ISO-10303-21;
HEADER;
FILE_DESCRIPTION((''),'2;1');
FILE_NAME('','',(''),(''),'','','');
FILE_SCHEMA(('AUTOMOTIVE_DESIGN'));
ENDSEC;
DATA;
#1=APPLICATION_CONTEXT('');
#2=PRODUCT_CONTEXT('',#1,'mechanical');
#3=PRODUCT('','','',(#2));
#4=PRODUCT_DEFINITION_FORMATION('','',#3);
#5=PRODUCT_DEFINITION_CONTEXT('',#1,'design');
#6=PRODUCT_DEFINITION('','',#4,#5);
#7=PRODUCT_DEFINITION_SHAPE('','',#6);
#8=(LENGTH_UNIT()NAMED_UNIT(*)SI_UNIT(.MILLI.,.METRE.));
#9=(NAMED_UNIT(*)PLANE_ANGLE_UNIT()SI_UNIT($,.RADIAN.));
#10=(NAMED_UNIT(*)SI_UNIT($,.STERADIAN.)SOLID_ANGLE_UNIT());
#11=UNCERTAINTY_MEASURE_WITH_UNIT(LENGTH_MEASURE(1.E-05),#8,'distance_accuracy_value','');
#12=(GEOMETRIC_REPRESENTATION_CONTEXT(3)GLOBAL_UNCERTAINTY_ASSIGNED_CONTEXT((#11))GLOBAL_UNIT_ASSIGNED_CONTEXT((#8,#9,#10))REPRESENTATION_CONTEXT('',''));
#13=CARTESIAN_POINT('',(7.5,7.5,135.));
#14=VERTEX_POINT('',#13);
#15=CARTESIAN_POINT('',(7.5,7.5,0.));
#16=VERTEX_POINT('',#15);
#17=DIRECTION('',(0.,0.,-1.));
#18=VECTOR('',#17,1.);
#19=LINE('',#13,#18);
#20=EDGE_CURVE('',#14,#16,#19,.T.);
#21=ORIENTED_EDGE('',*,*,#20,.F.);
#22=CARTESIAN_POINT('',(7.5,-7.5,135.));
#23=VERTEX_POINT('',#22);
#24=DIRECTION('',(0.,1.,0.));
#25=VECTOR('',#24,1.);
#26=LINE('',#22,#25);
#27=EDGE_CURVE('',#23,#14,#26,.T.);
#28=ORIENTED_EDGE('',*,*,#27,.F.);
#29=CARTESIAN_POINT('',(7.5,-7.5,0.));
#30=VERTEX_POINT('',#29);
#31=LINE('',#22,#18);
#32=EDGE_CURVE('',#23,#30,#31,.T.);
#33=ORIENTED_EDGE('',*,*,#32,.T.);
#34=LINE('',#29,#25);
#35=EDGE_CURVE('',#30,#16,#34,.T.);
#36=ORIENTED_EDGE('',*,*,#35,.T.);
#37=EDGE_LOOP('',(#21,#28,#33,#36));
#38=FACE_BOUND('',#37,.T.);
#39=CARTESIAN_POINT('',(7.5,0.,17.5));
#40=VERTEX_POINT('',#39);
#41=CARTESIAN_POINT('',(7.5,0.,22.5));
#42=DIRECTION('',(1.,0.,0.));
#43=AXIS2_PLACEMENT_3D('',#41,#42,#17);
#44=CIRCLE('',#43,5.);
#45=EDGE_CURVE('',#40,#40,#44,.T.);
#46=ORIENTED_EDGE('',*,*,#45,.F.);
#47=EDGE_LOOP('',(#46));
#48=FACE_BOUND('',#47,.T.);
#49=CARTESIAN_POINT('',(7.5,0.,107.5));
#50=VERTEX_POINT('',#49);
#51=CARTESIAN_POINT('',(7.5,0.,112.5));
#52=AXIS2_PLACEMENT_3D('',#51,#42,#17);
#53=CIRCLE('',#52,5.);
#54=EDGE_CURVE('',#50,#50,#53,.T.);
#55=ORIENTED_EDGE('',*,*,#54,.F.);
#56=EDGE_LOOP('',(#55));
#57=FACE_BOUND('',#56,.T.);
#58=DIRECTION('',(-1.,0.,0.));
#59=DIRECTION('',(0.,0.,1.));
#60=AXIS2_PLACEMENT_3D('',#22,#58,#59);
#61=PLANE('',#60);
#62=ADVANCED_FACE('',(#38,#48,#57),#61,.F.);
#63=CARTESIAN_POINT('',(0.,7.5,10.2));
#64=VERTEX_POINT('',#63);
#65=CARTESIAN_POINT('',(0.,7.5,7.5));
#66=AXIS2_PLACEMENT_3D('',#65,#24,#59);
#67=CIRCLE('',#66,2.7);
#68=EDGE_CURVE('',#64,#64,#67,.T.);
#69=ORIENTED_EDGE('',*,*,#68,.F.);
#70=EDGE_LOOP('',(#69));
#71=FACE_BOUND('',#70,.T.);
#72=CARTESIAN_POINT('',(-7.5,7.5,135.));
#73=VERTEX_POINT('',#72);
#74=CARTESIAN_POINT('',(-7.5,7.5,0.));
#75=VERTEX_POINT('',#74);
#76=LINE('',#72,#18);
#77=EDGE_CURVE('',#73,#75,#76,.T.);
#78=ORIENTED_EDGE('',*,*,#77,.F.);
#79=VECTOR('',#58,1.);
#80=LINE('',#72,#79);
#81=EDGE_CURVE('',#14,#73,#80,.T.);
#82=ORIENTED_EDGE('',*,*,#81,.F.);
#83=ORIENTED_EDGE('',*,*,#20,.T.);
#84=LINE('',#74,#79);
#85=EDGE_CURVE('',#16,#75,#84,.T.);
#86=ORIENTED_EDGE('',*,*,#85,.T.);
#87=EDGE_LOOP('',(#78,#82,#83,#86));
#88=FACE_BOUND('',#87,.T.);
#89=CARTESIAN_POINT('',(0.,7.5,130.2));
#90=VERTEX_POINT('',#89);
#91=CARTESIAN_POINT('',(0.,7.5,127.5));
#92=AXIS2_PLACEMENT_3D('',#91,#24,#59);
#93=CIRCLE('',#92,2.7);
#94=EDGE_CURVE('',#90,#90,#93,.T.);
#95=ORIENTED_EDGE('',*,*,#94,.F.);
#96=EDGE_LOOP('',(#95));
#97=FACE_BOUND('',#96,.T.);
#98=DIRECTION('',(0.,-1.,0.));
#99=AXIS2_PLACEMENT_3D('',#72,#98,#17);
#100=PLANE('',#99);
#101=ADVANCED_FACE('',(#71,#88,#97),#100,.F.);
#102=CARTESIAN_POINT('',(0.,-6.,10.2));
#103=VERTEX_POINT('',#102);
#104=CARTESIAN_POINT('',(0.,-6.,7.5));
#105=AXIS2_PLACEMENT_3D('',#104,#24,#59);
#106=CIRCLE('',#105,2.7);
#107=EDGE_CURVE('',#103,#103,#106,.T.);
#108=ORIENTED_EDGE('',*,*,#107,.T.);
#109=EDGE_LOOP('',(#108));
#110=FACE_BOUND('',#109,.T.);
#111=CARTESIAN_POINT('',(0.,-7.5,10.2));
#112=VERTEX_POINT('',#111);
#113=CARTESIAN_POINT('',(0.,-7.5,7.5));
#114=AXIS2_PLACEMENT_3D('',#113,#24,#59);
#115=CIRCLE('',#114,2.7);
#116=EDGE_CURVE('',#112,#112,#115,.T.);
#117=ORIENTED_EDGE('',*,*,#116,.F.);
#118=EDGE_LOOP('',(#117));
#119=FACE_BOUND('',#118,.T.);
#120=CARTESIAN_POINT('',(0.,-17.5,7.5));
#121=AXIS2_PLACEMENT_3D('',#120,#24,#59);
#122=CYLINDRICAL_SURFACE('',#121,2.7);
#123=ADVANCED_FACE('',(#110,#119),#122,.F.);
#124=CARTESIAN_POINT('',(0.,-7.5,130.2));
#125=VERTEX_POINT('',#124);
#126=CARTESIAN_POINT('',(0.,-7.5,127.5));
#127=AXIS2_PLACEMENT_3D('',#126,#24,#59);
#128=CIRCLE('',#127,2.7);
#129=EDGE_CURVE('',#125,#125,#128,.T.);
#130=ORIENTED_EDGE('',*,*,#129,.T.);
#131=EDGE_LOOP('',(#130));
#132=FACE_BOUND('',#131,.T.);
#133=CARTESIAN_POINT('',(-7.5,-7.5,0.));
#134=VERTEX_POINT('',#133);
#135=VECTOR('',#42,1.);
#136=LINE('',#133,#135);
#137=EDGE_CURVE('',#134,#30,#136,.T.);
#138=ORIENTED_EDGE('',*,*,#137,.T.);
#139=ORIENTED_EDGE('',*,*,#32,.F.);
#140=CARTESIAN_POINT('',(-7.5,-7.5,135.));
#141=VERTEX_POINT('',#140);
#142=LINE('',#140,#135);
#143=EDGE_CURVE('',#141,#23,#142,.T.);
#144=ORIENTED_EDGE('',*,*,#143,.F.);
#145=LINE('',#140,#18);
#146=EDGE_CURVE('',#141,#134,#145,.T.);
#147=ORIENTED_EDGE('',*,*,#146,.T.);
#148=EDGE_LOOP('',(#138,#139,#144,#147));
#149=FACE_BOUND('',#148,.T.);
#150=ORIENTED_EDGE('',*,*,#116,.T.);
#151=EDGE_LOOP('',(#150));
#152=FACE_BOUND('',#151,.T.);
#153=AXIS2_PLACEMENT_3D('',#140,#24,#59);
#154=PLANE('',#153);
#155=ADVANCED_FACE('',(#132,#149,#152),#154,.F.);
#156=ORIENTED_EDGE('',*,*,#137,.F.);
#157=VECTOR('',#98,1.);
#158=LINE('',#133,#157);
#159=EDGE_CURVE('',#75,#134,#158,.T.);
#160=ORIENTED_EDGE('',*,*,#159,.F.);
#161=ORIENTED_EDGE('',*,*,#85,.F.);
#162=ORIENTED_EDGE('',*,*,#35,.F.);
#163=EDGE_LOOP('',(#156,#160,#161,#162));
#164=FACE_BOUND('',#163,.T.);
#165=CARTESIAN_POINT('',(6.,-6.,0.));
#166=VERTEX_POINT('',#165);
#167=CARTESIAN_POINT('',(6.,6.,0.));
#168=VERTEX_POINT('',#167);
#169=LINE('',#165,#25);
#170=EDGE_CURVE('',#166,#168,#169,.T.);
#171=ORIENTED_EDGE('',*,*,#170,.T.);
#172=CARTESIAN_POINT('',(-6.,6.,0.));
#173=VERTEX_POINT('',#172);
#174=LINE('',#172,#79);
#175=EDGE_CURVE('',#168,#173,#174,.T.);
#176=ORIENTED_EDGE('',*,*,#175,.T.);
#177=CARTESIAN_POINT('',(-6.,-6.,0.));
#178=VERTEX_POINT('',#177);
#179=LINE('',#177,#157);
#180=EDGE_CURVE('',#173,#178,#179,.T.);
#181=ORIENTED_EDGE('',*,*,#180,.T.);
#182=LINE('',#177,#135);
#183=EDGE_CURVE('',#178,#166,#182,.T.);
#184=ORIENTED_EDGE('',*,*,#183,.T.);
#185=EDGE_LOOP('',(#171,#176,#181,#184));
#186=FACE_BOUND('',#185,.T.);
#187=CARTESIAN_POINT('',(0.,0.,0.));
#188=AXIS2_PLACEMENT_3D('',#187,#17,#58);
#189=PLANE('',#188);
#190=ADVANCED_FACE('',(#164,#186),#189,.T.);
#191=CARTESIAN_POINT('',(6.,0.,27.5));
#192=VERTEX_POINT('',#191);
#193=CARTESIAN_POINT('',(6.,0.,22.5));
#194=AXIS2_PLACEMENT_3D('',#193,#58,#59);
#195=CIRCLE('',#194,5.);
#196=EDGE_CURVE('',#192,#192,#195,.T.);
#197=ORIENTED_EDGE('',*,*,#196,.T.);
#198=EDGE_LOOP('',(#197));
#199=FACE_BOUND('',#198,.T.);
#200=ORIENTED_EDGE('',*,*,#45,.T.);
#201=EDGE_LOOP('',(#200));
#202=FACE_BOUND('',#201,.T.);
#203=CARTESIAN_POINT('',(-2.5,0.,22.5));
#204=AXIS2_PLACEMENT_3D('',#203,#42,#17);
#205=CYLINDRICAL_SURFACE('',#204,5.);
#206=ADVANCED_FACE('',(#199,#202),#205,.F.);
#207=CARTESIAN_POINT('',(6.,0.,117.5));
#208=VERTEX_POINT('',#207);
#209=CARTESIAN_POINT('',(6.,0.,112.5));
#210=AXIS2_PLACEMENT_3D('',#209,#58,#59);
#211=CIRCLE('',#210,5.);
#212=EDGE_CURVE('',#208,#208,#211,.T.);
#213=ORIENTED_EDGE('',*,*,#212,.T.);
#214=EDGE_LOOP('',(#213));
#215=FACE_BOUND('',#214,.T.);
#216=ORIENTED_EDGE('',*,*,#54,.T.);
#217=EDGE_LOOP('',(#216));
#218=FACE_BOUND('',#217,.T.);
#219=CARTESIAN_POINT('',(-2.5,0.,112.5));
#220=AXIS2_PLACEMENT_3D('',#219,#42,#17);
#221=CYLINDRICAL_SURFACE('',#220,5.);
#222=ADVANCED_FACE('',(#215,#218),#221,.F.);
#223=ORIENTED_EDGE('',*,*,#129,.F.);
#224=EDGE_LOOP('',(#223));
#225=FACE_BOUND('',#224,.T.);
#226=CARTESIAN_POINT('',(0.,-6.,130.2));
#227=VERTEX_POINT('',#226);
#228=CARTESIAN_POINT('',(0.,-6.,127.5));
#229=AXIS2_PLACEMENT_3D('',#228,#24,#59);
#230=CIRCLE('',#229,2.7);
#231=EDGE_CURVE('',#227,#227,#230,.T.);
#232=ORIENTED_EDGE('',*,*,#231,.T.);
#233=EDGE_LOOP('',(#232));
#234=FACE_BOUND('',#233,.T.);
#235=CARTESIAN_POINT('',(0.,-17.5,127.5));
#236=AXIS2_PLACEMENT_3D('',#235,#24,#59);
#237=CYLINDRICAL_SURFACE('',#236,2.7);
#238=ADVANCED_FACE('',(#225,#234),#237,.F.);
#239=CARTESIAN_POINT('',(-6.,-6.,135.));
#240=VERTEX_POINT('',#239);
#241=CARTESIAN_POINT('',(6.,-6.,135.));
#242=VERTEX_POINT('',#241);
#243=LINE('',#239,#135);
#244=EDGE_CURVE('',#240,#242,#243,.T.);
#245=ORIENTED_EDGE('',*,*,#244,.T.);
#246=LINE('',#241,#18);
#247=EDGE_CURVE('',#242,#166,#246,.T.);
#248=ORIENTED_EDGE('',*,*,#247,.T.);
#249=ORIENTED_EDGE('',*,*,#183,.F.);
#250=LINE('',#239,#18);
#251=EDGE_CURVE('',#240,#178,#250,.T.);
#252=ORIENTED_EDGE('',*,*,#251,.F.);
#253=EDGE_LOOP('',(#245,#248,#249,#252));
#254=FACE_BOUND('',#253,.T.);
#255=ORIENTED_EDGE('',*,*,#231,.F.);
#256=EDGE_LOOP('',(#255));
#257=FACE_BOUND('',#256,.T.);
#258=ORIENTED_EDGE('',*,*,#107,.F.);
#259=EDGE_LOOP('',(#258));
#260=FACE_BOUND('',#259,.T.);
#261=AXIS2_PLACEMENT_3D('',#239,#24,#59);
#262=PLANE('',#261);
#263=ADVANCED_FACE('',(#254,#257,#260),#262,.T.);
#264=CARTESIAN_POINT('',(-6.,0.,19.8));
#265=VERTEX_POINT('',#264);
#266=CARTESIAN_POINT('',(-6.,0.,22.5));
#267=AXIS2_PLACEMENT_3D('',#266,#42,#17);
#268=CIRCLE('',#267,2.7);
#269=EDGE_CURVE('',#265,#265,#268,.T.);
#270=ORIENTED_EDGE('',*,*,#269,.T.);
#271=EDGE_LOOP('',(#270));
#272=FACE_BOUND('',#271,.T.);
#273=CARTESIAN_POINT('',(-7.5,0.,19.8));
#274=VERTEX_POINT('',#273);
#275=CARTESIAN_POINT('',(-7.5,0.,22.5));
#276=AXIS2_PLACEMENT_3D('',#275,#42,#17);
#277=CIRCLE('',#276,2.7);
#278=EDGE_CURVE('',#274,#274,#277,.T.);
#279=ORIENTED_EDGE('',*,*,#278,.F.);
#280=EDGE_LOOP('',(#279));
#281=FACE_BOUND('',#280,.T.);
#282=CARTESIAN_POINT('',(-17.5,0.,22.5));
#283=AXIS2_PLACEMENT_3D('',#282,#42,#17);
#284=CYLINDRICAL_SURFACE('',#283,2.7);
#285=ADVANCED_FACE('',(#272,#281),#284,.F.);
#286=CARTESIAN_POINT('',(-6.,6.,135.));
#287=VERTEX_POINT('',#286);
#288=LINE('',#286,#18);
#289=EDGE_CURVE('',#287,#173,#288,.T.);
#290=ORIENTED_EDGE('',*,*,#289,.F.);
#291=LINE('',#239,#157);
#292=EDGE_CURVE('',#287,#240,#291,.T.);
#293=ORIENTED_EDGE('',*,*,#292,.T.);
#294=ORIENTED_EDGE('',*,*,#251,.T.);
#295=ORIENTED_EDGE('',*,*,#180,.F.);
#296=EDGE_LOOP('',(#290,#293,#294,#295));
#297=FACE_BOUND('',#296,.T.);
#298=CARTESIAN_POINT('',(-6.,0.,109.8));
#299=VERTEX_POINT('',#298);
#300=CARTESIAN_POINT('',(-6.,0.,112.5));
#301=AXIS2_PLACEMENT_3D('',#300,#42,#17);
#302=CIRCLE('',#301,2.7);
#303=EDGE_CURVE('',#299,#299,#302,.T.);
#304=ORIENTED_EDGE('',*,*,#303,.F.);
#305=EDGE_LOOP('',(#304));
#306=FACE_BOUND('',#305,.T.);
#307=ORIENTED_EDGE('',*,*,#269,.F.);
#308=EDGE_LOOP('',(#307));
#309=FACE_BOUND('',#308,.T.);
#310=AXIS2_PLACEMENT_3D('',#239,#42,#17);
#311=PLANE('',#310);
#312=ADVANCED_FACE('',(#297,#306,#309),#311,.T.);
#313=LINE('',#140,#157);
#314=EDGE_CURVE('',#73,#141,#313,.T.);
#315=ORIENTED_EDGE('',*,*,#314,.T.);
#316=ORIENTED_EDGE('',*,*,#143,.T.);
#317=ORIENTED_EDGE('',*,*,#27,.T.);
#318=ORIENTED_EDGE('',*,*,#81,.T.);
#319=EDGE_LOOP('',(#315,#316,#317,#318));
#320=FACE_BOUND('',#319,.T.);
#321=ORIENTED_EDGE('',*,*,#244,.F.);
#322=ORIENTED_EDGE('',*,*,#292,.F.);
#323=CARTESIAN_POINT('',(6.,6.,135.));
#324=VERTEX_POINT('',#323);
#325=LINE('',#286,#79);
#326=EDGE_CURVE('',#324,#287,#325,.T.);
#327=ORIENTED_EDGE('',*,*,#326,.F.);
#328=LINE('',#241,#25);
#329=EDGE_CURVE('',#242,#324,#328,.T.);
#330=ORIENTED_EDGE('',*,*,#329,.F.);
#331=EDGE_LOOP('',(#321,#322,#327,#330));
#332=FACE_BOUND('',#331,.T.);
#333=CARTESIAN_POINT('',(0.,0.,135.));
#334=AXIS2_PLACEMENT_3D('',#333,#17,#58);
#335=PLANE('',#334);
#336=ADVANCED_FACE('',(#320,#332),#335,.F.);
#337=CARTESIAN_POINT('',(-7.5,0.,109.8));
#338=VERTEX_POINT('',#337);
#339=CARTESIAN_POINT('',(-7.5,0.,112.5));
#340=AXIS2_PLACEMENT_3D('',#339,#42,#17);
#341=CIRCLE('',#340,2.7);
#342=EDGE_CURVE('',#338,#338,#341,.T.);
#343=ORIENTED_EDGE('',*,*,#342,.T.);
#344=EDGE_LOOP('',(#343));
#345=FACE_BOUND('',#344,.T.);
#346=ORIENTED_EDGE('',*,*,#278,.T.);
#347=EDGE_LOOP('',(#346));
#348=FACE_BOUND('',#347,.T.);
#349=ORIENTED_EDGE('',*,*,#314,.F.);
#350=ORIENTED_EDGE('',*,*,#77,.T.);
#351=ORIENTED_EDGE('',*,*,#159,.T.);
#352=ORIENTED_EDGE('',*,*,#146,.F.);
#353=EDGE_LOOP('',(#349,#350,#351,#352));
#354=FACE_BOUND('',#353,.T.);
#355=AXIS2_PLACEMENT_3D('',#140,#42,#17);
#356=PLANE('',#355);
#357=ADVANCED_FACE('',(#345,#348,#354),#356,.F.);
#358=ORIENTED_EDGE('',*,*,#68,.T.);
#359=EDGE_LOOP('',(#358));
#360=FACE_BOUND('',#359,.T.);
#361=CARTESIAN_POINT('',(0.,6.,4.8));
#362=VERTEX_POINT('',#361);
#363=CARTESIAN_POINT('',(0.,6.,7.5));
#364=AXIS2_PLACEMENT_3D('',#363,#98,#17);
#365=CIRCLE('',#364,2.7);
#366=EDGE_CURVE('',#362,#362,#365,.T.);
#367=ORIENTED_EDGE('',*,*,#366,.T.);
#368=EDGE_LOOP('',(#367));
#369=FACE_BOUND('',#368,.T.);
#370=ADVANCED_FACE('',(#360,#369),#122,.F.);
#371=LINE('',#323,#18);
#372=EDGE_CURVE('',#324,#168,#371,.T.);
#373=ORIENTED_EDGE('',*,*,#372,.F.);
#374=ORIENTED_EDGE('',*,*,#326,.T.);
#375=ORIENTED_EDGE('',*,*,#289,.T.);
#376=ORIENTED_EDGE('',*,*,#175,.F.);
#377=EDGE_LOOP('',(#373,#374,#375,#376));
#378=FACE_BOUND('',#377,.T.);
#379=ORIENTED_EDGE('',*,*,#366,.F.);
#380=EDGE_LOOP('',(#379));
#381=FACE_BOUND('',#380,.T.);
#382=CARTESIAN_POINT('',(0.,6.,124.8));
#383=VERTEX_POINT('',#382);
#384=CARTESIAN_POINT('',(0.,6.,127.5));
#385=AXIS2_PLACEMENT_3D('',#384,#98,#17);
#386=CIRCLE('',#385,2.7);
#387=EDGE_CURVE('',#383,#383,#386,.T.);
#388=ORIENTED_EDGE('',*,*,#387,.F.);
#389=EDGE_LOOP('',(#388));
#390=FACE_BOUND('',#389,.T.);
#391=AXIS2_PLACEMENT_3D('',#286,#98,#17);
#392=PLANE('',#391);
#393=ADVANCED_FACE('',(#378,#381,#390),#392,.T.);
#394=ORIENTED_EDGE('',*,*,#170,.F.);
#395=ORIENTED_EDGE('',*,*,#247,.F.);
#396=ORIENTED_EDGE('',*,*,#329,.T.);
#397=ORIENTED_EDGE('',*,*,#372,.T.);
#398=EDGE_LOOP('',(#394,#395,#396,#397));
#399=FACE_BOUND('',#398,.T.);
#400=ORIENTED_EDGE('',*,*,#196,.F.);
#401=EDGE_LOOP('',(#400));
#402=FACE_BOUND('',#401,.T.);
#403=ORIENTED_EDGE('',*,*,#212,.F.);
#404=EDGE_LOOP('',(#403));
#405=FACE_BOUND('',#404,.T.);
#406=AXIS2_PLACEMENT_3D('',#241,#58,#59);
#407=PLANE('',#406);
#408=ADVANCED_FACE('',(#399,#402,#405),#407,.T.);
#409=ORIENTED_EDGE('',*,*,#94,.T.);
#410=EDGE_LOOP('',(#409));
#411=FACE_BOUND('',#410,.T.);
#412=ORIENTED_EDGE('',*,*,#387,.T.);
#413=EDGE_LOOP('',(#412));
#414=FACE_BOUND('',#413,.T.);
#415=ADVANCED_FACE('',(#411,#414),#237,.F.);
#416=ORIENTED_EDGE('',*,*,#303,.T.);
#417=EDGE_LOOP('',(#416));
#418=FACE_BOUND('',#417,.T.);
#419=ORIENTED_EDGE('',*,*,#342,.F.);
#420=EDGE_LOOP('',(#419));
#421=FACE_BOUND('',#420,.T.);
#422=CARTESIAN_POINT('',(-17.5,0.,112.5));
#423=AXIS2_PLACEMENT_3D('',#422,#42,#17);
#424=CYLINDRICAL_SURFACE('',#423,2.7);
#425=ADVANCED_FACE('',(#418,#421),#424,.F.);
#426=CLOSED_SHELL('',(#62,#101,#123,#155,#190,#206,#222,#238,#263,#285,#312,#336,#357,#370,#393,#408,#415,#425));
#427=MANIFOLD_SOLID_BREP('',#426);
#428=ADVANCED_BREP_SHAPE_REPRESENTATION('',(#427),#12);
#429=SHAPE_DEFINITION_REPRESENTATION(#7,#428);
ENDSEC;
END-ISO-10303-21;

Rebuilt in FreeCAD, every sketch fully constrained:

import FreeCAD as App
import Part
import Sketcher

V = App.Vector
Q = App.Units.Quantity

doc = App.newDocument("Part")
params = doc.addObject("Spreadsheet::Sheet", "Params")
for row, (alias, value) in enumerate([
    ("sketch1_width", "15 mm"),
    ("sketch1_width2", "12 mm"),
    ("pad1_length", "135 mm"),
    ("sketch2_diameter", "5.4 mm"),
    ("pocket1_length", "25 mm"),
    ("sketch3_diameter", "5.4 mm"),
    ("pocket2_length", "25 mm"),
    ("sketch4_diameter", "10 mm"),
    ("pocket3_length", "10 mm"),
], start=1):
    params.set(f"A{row}", alias)
    params.set(f"B{row}", "=" + value)
    params.setAlias(f"B{row}", alias)

body = doc.addObject("PartDesign::Body", "Body")

# Sketch on XY plane
sketch1 = body.newObject("Sketcher::SketchObject", "Sketch")
sketch1.AttachmentSupport = (doc.getObject("XY_Plane"), [""])
sketch1.MapMode = "FlatFace"
sketch1.addGeometry([
    Part.LineSegment(V(-8, 8, 0), V(-8, -8, 0)),  # 0
    Part.LineSegment(V(-8, -8, 0), V(8, -8, 0)),  # 1
    Part.LineSegment(V(8, -8, 0), V(8, 8, 0)),  # 2
    Part.LineSegment(V(8, 8, 0), V(-8, 8, 0)),  # 3
    Part.LineSegment(V(6, -6, 0), V(-6, -6, 0)),  # 4
    Part.LineSegment(V(-6, -6, 0), V(-6, 6, 0)),  # 5
    Part.LineSegment(V(-6, 6, 0), V(6, 6, 0)),  # 6
    Part.LineSegment(V(6, 6, 0), V(6, -6, 0)),  # 7
], False)
sketch1.addConstraint([
    Sketcher.Constraint("Coincident", 0, 2, 1, 1),
    Sketcher.Constraint("Coincident", 1, 2, 2, 1),
    Sketcher.Constraint("Coincident", 2, 2, 3, 1),
    Sketcher.Constraint("Coincident", 3, 2, 0, 1),
    Sketcher.Constraint("Coincident", 4, 2, 5, 1),
    Sketcher.Constraint("Coincident", 5, 2, 6, 1),
    Sketcher.Constraint("Coincident", 6, 2, 7, 1),
    Sketcher.Constraint("Coincident", 7, 2, 4, 1),
    Sketcher.Constraint("Vertical", 0),
    Sketcher.Constraint("Horizontal", 1),
    Sketcher.Constraint("Vertical", 2),
    Sketcher.Constraint("Horizontal", 3),
    Sketcher.Constraint("Horizontal", 4),
    Sketcher.Constraint("Vertical", 5),
    Sketcher.Constraint("Horizontal", 6),
    Sketcher.Constraint("Vertical", 7),
    Sketcher.Constraint("Symmetric", 0, 2, 2, 2, -1, 1),
    Sketcher.Constraint("Symmetric", 4, 2, 6, 2, -1, 1),
    Sketcher.Constraint("Equal", 3, 0),
    Sketcher.Constraint("Equal", 6, 5),
    Sketcher.Constraint("DistanceX", 1, 1, 1, 2, Q("15 mm")),
    Sketcher.Constraint("DistanceX", 4, 2, 4, 1, Q("12 mm")),
])
sketch1.setExpression("Constraints[20]", "Params.sketch1_width")
sketch1.setExpression("Constraints[21]", "Params.sketch1_width2")
pad1 = body.newObject("PartDesign::Pad", "Pad")
pad1.Profile = sketch1
pad1.setExpression("Length", "Params.pad1_length")

# Sketch on YZ plane
sketch2 = body.newObject("Sketcher::SketchObject", "Sketch001")
sketch2.AttachmentSupport = (doc.getObject("YZ_Plane"), [""])
sketch2.MapMode = "FlatFace"
sketch2.AttachmentOffset = App.Placement(V(0, 0, 7.5), App.Rotation())
sketch2.addGeometry([
    Part.Circle(V(0, 112.5, 0), V(0, 0, 1), 2.7),
    Part.Circle(V(0, 22.5, 0), V(0, 0, 1), 2.7),
], False)
sketch2.addConstraint([
    Sketcher.Constraint("Equal", 0, 1),
    Sketcher.Constraint("PointOnObject", 0, 3, -2),
    Sketcher.Constraint("PointOnObject", 1, 3, -2),
    Sketcher.Constraint("Diameter", 0, Q("5.4 mm")),
    Sketcher.Constraint("DistanceY", 1, 3, 0, 3, Q("90 mm")),
    Sketcher.Constraint("DistanceY", -1, 1, 0, 3, Q("112.5 mm")),
])
sketch2.setExpression("Constraints[3]", "Params.sketch2_diameter")
pocket1 = body.newObject("PartDesign::Pocket", "Pocket")
pocket1.Profile = sketch2
pocket1.setExpression("Length", "Params.pocket1_length")

# Sketch on XZ plane
sketch3 = body.newObject("Sketcher::SketchObject", "Sketch002")
sketch3.AttachmentSupport = (doc.getObject("XZ_Plane"), [""])
sketch3.MapMode = "FlatFace"
sketch3.AttachmentOffset = App.Placement(V(0, 0, -7.5), App.Rotation())
sketch3.addGeometry([
    Part.Circle(V(0, 7.5, 0), V(0, 0, 1), 2.7),
    Part.Circle(V(0, 127.5, 0), V(0, 0, 1), 2.7),
], False)
sketch3.addConstraint([
    Sketcher.Constraint("Equal", 0, 1),
    Sketcher.Constraint("PointOnObject", 0, 3, -2),
    Sketcher.Constraint("PointOnObject", 1, 3, -2),
    Sketcher.Constraint("Diameter", 0, Q("5.4 mm")),
    Sketcher.Constraint("DistanceY", 0, 3, 1, 3, Q("120 mm")),
    Sketcher.Constraint("DistanceY", -1, 1, 0, 3, Q("7.5 mm")),
])
sketch3.setExpression("Constraints[3]", "Params.sketch3_diameter")
pocket2 = body.newObject("PartDesign::Pocket", "Pocket001")
pocket2.Profile = sketch3
pocket2.setExpression("Length", "Params.pocket2_length")
pocket2.Reversed = True

# Sketch on YZ plane
sketch4 = body.newObject("Sketcher::SketchObject", "Sketch003")
sketch4.AttachmentSupport = (doc.getObject("YZ_Plane"), [""])
sketch4.MapMode = "FlatFace"
sketch4.AttachmentOffset = App.Placement(V(0, 0, 7.5), App.Rotation())
sketch4.addGeometry([
    Part.Circle(V(0, 22, 0), V(0, 0, 1), 5),
    Part.Circle(V(0, 112, 0), V(0, 0, 1), 5),
], False)
sketch4.addConstraint([
    Sketcher.Constraint("Equal", 0, 1),
    Sketcher.Constraint("PointOnObject", 0, 3, -2),
    Sketcher.Constraint("PointOnObject", 1, 3, -2),
    Sketcher.Constraint("Diameter", 0, Q("10 mm")),
    Sketcher.Constraint("DistanceY", 0, 3, 1, 3, Q("90 mm")),
    Sketcher.Constraint("DistanceY", -1, 1, 0, 3, Q("22.5 mm")),
])
sketch4.setExpression("Constraints[3]", "Params.sketch4_diameter")
pocket3 = body.newObject("PartDesign::Pocket", "Pocket002")
pocket3.Profile = sketch4
pocket3.setExpression("Length", "Params.pocket3_length")

doc.recompute()
